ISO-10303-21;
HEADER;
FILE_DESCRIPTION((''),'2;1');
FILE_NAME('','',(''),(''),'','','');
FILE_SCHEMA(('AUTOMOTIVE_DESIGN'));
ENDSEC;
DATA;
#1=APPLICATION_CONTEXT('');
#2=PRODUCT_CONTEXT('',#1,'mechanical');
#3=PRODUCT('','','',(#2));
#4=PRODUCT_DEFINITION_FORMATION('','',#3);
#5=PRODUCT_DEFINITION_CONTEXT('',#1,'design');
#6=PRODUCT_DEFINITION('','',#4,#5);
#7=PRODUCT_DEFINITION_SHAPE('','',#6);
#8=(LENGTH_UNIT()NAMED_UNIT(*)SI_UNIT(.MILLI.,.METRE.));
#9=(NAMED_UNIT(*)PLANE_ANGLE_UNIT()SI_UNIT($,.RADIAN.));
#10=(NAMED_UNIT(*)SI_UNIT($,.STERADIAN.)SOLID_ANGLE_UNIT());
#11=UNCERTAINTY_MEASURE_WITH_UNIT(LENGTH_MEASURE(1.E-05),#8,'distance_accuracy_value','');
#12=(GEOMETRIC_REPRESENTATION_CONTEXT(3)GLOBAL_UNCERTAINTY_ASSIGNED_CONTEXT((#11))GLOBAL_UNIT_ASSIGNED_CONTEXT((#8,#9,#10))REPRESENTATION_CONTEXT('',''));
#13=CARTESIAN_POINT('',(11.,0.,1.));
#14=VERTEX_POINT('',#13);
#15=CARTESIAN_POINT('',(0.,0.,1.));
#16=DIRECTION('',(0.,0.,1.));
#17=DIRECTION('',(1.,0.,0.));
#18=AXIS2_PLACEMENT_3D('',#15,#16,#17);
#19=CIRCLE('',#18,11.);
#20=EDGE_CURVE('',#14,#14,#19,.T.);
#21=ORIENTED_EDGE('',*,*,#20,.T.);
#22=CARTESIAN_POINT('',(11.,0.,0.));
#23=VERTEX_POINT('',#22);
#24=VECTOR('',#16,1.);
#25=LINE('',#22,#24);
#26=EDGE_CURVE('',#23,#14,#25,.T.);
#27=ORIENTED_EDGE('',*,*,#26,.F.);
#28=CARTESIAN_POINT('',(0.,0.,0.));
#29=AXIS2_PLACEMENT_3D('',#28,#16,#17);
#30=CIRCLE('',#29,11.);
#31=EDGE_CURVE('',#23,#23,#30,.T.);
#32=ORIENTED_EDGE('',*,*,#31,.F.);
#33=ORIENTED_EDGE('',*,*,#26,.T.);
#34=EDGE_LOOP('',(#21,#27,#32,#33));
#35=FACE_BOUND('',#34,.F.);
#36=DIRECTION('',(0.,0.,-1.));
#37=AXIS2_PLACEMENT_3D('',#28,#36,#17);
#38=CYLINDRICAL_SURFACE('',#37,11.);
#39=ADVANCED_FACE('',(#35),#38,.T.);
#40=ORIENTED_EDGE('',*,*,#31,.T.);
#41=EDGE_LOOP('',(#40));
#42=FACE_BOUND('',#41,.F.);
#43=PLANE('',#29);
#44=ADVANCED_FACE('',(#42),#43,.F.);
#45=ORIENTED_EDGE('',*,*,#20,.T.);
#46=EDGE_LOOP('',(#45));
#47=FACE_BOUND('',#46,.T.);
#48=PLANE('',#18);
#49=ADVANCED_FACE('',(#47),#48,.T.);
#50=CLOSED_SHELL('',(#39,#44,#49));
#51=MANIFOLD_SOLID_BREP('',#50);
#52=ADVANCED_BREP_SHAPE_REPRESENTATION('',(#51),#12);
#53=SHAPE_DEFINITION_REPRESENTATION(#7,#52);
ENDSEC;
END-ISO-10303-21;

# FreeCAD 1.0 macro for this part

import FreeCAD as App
import Part
import Sketcher
from FreeCAD import Vector

doc = App.newDocument("Part")
body = doc.addObject("PartDesign::Body", "Body")

sketch1 = body.newObject("Sketcher::SketchObject", "Sketch")
sketch1.AttachmentSupport = (doc.getObject("XY_Plane"), [""])
sketch1.MapMode = "FlatFace"
sketch1.addGeometry(Part.Circle(Vector(0, 0, 0), Vector(0, 0, 1), 11), False)
sketch1.addConstraint(Sketcher.Constraint("Coincident", 0, 3, -1, 1))
sketch1.addConstraint(Sketcher.Constraint("Diameter", 0, 22.0))
pad1 = body.newObject("PartDesign::Pad", "Pad")
pad1.Profile = sketch1
pad1.Length = 1

doc.recompute()
